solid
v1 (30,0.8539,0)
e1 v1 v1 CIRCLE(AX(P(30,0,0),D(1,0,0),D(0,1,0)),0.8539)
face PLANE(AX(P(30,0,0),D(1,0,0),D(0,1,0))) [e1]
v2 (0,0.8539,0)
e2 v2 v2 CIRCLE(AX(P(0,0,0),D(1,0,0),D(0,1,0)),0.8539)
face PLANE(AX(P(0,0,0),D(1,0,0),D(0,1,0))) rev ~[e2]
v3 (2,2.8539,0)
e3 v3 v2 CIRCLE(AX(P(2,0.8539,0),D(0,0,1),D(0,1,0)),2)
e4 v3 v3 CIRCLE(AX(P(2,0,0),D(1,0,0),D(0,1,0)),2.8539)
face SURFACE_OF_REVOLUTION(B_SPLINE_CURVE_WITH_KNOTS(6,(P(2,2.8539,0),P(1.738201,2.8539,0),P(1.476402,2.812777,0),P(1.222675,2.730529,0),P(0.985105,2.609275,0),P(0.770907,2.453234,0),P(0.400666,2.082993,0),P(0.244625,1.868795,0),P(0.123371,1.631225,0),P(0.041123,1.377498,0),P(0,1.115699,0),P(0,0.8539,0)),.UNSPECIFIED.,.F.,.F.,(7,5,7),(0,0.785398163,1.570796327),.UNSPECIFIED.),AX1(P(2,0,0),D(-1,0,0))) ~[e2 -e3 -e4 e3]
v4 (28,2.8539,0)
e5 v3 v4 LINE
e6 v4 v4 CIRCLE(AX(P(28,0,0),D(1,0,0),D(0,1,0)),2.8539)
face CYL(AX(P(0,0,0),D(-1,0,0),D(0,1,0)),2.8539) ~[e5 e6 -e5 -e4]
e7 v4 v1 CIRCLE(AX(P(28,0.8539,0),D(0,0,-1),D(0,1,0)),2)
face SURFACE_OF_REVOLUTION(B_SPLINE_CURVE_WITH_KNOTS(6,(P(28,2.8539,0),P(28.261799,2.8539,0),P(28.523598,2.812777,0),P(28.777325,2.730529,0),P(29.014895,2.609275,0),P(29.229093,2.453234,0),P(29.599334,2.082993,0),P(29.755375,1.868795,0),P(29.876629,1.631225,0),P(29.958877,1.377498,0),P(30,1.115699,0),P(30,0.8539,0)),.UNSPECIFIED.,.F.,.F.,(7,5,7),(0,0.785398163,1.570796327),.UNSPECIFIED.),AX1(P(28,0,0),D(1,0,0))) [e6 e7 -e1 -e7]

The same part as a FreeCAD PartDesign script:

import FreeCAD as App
import Part
import Sketcher

V = App.Vector


def edges_at(feature, points):
    """Names of the edges that pass closest to the given points."""
    edges = feature.Shape.Edges
    near = lambda p: min(range(len(edges)), key=lambda i: edges[i].distToShape(Part.Vertex(*p))[0])
    return sorted({f"Edge{near(p) + 1}" for p in points})

doc = App.newDocument("Part")
params = doc.addObject("Spreadsheet::Sheet", "Params")
for row, (alias, value) in enumerate([
    ("pad1_length", "30 mm"),
    ("fillet_radius", "2 mm"),
], start=1):
    params.set(f"A{row}", alias)
    params.set(f"B{row}", "=" + value)
    params.setAlias(f"B{row}", alias)

body = doc.addObject("PartDesign::Body", "Body")

sketch1 = body.newObject("Sketcher::SketchObject", "Sketch")
sketch1.AttachmentSupport = (doc.getObject("YZ_Plane"), [""])
sketch1.MapMode = "FlatFace"
sketch1.addGeometry(Part.Circle(V(0, 0, 0), V(0, 0, 1), 2.9), False)
sketch1.addConstraint([
    Sketcher.Constraint("Coincident", 0, 3, -1, 1),
    Sketcher.Constraint("Diameter", 0, 5.7078),
])
pad1 = body.newObject("PartDesign::Pad", "Pad")
pad1.Profile = sketch1
pad1.setExpression("Length", "Params.pad1_length")
doc.recompute()

fillet = body.newObject("PartDesign::Fillet", "Fillet")
fillet.Base = (pad1, edges_at(pad1, [(30, -2.854, 0), (0, -2.854, 0)]))
fillet.setExpression("Radius", "Params.fillet_radius")

doc.recompute()
